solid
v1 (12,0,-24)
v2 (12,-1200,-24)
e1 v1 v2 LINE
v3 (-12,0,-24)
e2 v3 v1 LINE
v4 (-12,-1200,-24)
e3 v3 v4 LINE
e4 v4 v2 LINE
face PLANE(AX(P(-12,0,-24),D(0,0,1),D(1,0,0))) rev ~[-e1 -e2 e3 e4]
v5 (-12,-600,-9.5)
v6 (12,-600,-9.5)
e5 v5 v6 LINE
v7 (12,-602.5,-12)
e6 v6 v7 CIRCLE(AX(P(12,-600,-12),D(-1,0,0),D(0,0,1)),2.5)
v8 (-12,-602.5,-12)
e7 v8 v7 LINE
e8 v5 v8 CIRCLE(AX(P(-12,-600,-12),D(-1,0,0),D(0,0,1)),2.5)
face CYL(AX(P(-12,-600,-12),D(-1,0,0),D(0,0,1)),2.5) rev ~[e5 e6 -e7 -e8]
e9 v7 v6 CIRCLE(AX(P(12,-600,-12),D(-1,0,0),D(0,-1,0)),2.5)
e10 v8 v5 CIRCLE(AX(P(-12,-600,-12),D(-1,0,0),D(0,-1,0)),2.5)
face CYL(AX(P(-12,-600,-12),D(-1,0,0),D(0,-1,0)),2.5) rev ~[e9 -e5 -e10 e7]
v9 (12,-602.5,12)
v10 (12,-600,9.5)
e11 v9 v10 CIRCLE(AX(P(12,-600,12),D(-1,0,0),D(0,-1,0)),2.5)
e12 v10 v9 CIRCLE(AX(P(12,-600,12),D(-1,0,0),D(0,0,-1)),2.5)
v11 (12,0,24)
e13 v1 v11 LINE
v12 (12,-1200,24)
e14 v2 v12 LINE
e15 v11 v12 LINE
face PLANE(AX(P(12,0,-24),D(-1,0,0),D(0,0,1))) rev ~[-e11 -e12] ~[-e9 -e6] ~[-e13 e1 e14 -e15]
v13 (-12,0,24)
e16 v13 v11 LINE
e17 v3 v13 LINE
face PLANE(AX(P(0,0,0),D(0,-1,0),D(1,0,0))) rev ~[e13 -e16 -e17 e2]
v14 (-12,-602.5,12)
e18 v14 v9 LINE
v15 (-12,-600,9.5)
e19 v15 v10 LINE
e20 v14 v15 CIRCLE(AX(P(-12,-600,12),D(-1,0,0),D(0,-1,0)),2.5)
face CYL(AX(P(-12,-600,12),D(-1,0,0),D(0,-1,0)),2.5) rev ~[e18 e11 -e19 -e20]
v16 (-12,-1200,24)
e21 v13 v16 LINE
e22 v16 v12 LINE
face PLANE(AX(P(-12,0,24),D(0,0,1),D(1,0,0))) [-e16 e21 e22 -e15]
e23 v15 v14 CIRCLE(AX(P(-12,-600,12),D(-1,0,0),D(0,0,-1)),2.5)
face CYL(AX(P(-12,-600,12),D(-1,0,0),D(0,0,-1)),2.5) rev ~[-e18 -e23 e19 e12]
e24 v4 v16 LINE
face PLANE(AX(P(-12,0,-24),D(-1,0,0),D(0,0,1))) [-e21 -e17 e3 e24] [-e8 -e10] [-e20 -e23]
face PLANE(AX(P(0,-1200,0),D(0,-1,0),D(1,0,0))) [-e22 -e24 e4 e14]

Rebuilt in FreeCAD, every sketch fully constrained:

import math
import FreeCAD as App
import Part
import Sketcher

V = App.Vector

doc = App.newDocument("Part")
params = doc.addObject("Spreadsheet::Sheet", "Params")
for row, (alias, value) in enumerate([
    ("sketch1_width", "24 mm"),
    ("sketch1_height", "48 mm"),
    ("pad1_length", "1200 mm"),
    ("sketch2_radius", "2.5 mm"),
    ("pocket1_length", "24 mm"),
], start=1):
    params.set(f"A{row}", alias)
    params.set(f"B{row}", "=" + value)
    params.setAlias(f"B{row}", alias)

body = doc.addObject("PartDesign::Body", "Body")

# Sketch on XZ plane
sketch1 = body.newObject("Sketcher::SketchObject", "Sketch")
sketch1.AttachmentSupport = (doc.getObject("XZ_Plane"), [""])
sketch1.MapMode = "FlatFace"
sketch1.addGeometry(Part.LineSegment(V(-12, 24, 0), V(-12, -24, 0)), False)
sketch1.addGeometry(Part.LineSegment(V(-12, -24, 0), V(12, -24, 0)), False)
sketch1.addGeometry(Part.LineSegment(V(12, -24, 0), V(12, 24, 0)), False)
sketch1.addGeometry(Part.LineSegment(V(12, 24, 0), V(-12, 24, 0)), False)
sketch1.addConstraint(Sketcher.Constraint("Coincident", 0, 2, 1, 1))
sketch1.addConstraint(Sketcher.Constraint("Coincident", 1, 2, 2, 1))
sketch1.addConstraint(Sketcher.Constraint("Coincident", 2, 2, 3, 1))
sketch1.addConstraint(Sketcher.Constraint("Coincident", 3, 2, 0, 1))
sketch1.addConstraint(Sketcher.Constraint("Vertical", 0))
sketch1.addConstraint(Sketcher.Constraint("Horizontal", 1))
sketch1.addConstraint(Sketcher.Constraint("Vertical", 2))
sketch1.addConstraint(Sketcher.Constraint("Horizontal", 3))
sketch1.addConstraint(Sketcher.Constraint("Symmetric", 0, 2, 2, 2, -1, 1))
sketch1.addConstraint(Sketcher.Constraint("DistanceX", 1, 1, 1, 2, 24.0))
sketch1.addConstraint(Sketcher.Constraint("DistanceY", 0, 2, 0, 1, 48.0))
sketch1.setExpression("Constraints[9]", "Params.sketch1_width")
sketch1.setExpression("Constraints[10]", "Params.sketch1_height")
pad1 = body.newObject("PartDesign::Pad", "Pad")
pad1.Profile = sketch1
pad1.setExpression("Length", "Params.pad1_length")

# Sketch on YZ plane
sketch2 = body.newObject("Sketcher::SketchObject", "Sketch001")
sketch2.AttachmentSupport = (doc.getObject("YZ_Plane"), [""])
sketch2.MapMode = "FlatFace"
sketch2.AttachmentOffset = App.Placement(V(0, 0, -12), App.Rotation())
sketch2.addGeometry(Part.ArcOfCircle(Part.Circle(V(-1400, 12, 0), V(0, 0, 1), 2.5), math.radians(-90), math.radians(180)), False)
sketch2.addGeometry(Part.ArcOfCircle(Part.Circle(V(-1400, 12, 0), V(0, 0, 1), 2.5), math.radians(180), math.radians(270)), False)
sketch2.addGeometry(Part.ArcOfCircle(Part.Circle(V(-1400, -12, 0), V(0, 0, 1), 2.5), math.radians(90), math.radians(180)), False)
sketch2.addGeometry(Part.ArcOfCircle(Part.Circle(V(-1400, -12, 0), V(0, 0, 1), 2.5), math.radians(180), math.radians(450)), False)
sketch2.addGeometry(Part.ArcOfCircle(Part.Circle(V(-600, -12, 0), V(0, 0, 1), 2.5), math.radians(90), math.radians(180)), False)
sketch2.addGeometry(Part.ArcOfCircle(Part.Circle(V(-600, -12, 0), V(0, 0, 1), 2.5), math.radians(180), math.radians(450)), False)
sketch2.addGeometry(Part.ArcOfCircle(Part.Circle(V(-600, 12, 0), V(0, 0, 1), 2.5), math.radians(-90), math.radians(180)), False)
sketch2.addGeometry(Part.ArcOfCircle(Part.Circle(V(-600, 12, 0), V(0, 0, 1), 2.5), math.radians(180), math.radians(270)), False)
sketch2.addConstraint(Sketcher.Constraint("Tangent", 0, 1, 1, 2))
sketch2.addConstraint(Sketcher.Constraint("Coincident", 1, 1, 0, 2))
sketch2.addConstraint(Sketcher.Constraint("Tangent", 2, 1, 3, 2))
sketch2.addConstraint(Sketcher.Constraint("Coincident", 3, 1, 2, 2))
sketch2.addConstraint(Sketcher.Constraint("Tangent", 4, 1, 5, 2))
sketch2.addConstraint(Sketcher.Constraint("Coincident", 5, 1, 4, 2))
sketch2.addConstraint(Sketcher.Constraint("Tangent", 6, 1, 7, 2))
sketch2.addConstraint(Sketcher.Constraint("Coincident", 7, 1, 6, 2))
sketch2.addConstraint(Sketcher.Constraint("Equal", 1, 2))
sketch2.addConstraint(Sketcher.Constraint("Equal", 3, 4))
sketch2.addConstraint(Sketcher.Constraint("Equal", 5, 6))
sketch2.addConstraint(Sketcher.Constraint("Symmetric", 0, 3, 2, 3, -1))
sketch2.addConstraint(Sketcher.Constraint("Symmetric", 4, 3, 6, 3, -1))
sketch2.addConstraint(Sketcher.Constraint("Horizontal", 3, 3, 4, 3))
sketch2.addConstraint(Sketcher.Constraint("Horizontal", 7, 3, 1, 1))
sketch2.addConstraint(Sketcher.Constraint("Horizontal", 5, 3, 3, 1))
sketch2.addConstraint(Sketcher.Constraint("Horizontal", 3, 1, 5, 1))
sketch2.addConstraint(Sketcher.Constraint("Horizontal", 1, 1, 7, 1))
sketch2.addConstraint(Sketcher.Constraint("Vertical", 3, 3, 0, 1))
sketch2.addConstraint(Sketcher.Constraint("Vertical", 0, 1, 2, 1))
sketch2.addConstraint(Sketcher.Constraint("Vertical", 7, 3, 4, 1))
sketch2.addConstraint(Sketcher.Constraint("Vertical", 4, 1, 6, 1))
sketch2.addConstraint(Sketcher.Constraint("Radius", 0, 2.5))
sketch2.addConstraint(Sketcher.Constraint("DistanceX", 0, 3, -1, 1, 1400.0))
sketch2.addConstraint(Sketcher.Constraint("DistanceY", -1, 1, 0, 3, 12.0))
sketch2.addConstraint(Sketcher.Constraint("DistanceX", 4, 3, -1, 1, 600.0))
sketch2.setExpression("Constraints[22]", "Params.sketch2_radius")
pocket1 = body.newObject("PartDesign::Pocket", "Pocket")
pocket1.Profile = sketch2
pocket1.setExpression("Length", "Params.pocket1_length")
pocket1.Reversed = True

doc.recompute()
